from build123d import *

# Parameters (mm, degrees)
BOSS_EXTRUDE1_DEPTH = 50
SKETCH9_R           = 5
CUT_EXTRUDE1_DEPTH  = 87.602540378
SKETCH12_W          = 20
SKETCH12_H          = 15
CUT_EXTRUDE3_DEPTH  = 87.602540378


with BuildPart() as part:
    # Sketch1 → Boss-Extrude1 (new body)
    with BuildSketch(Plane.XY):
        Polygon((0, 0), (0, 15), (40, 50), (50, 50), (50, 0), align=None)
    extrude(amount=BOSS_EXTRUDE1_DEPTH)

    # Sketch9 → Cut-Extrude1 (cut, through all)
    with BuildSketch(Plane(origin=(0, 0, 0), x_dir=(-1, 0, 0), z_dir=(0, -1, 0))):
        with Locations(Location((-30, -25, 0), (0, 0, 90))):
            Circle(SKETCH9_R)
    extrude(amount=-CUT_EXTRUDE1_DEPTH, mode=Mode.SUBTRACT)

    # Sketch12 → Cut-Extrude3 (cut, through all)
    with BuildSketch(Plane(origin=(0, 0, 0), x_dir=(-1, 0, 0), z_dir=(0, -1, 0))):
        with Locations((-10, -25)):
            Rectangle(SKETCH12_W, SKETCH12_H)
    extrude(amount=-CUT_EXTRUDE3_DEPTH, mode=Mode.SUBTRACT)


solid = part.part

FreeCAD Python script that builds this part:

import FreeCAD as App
import Part
import Sketcher

V = App.Vector


def add_polygon(sketch, points):
    """Adds a closed chain of lines whose ends are joined by coincident constraints."""
    first, n = sketch.GeometryCount, len(points)
    for a, b in zip(points, points[1:] + points[:1]):
        sketch.addGeometry(Part.LineSegment(App.Vector(*a, 0), App.Vector(*b, 0)), False)
    for i in range(n):
        sketch.addConstraint(Sketcher.Constraint("Coincident", first + i, 2, first + (i + 1) % n, 1))

doc = App.newDocument("Part")
body = doc.addObject("PartDesign::Body", "Body")

sketch1 = body.newObject("Sketcher::SketchObject", "Sketch")
sketch1.AttachmentSupport = (doc.getObject("XY_Plane"), [""])
sketch1.MapMode = "FlatFace"
add_polygon(sketch1, [(0, 15), (0, 0), (50, 0), (50, 50), (40, 50)])
sketch1.addConstraint(Sketcher.Constraint("Vertical", 0))
sketch1.addConstraint(Sketcher.Constraint("Horizontal", 1))
sketch1.addConstraint(Sketcher.Constraint("Vertical", 2))
sketch1.addConstraint(Sketcher.Constraint("Horizontal", 3))
sketch1.addConstraint(Sketcher.Constraint("Coincident", 0, 2, -1, 1))
sketch1.addConstraint(Sketcher.Constraint("Equal", 1, 2))
sketch1.addConstraint(Sketcher.Constraint("DistanceX", 1, 1, 1, 2, 50.0))
sketch1.addConstraint(Sketcher.Constraint("DistanceX", 3, 2, 3, 1, 10.0))
sketch1.addConstraint(Sketcher.Constraint("DistanceY", 0, 2, 0, 1, 15.0))
pad1 = body.newObject("PartDesign::Pad", "Pad")
pad1.Profile = sketch1
pad1.Length = 50

sketch2 = body.newObject("Sketcher::SketchObject", "Sketch001")
sketch2.AttachmentSupport = (doc.getObject("XZ_Plane"), [""])
sketch2.MapMode = "FlatFace"
sketch2.addGeometry(Part.Circle(V(30, 25, 0), V(0, 0, 1), 5), False)
sketch2.addConstraint(Sketcher.Constraint("Diameter", 0, 10.0))
sketch2.addConstraint(Sketcher.Constraint("DistanceX", -1, 1, 0, 3, 30.0))
sketch2.addConstraint(Sketcher.Constraint("DistanceY", -1, 1, 0, 3, 25.0))
pocket1 = body.newObject("PartDesign::Pocket", "Pocket")
pocket1.Profile = sketch2
pocket1.Type = "ThroughAll"

sketch3 = body.newObject("Sketcher::SketchObject", "Sketch002")
sketch3.AttachmentSupport = (doc.getObject("XZ_Plane"), [""])
sketch3.MapMode = "FlatFace"
add_polygon(sketch3, [(20, 18), (20, 32), (0, 32), (0, 18)])
sketch3.addConstraint(Sketcher.Constraint("Vertical", 0))
sketch3.addConstraint(Sketcher.Constraint("Horizontal", 1))
sketch3.addConstraint(Sketcher.Constraint("Vertical", 2))
sketch3.addConstraint(Sketcher.Constraint("Horizontal", 3))
sketch3.addConstraint(Sketcher.Constraint("PointOnObject", 1, 2, -2))
sketch3.addConstraint(Sketcher.Constraint("DistanceX", 1, 2, 1, 1, 20.0))
sketch3.addConstraint(Sketcher.Constraint("DistanceY", 0, 1, 0, 2, 15.0))
sketch3.addConstraint(Sketcher.Constraint("DistanceY", -1, 1, 0, 2, 32.5))
pocket2 = body.newObject("PartDesign::Pocket", "Pocket001")
pocket2.Profile = sketch3
pocket2.Type = "ThroughAll"

doc.recompute()
